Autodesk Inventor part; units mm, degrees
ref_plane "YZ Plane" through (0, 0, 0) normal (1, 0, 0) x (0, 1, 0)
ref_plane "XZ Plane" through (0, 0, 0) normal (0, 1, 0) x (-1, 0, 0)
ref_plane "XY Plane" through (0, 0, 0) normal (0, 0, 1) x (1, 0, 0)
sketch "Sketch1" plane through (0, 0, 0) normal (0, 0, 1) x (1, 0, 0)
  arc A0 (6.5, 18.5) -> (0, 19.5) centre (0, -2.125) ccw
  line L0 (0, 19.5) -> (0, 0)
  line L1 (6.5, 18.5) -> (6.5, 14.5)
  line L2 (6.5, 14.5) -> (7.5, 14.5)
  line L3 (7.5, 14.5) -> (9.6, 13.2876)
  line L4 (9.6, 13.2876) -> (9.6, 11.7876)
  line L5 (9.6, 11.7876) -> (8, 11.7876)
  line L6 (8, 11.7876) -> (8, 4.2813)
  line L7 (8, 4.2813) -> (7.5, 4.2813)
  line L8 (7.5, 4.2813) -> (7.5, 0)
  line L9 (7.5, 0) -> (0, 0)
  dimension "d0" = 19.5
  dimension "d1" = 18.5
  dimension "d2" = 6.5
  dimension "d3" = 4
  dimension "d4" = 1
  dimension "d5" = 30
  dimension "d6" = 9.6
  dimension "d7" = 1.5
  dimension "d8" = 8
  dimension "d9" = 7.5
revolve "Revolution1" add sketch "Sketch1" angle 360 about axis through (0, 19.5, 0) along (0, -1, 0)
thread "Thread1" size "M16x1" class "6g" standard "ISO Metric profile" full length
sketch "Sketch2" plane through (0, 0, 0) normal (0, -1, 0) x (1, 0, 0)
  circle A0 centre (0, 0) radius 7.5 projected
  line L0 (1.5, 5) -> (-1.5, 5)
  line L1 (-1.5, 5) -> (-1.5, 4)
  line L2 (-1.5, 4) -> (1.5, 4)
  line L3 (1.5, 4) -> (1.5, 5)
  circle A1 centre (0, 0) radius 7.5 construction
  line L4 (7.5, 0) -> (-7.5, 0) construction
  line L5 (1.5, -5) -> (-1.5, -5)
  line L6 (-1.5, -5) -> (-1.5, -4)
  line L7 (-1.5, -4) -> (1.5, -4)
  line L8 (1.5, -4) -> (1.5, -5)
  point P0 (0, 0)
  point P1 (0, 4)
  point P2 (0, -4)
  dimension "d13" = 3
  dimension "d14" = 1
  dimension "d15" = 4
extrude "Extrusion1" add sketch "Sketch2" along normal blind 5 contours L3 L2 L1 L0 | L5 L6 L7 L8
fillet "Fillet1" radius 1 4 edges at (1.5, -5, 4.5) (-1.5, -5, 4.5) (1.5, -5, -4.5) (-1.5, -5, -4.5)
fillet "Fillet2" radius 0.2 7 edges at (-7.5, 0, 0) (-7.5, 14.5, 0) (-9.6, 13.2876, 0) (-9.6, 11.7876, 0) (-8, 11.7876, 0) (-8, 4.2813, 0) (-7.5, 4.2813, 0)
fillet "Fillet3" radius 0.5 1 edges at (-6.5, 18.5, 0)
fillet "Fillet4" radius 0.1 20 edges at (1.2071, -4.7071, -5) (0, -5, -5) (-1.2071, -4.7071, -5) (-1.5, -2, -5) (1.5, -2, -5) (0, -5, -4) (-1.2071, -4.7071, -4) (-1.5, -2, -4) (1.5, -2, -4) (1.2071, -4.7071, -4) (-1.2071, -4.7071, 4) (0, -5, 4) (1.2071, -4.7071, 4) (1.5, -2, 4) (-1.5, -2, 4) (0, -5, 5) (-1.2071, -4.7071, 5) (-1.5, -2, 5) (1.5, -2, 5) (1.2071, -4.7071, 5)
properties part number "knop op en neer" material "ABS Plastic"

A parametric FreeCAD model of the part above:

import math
import FreeCAD as App
import Part
import Sketcher

V = App.Vector
Q = App.Units.Quantity


def edges_at(feature, points):
    """Names of the edges that pass closest to the given points."""
    edges = feature.Shape.Edges
    near = lambda p: min(range(len(edges)), key=lambda i: edges[i].distToShape(Part.Vertex(*p))[0])
    return sorted({f"Edge{near(p) + 1}" for p in points})

doc = App.newDocument("Part")
body = doc.addObject("PartDesign::Body", "Body")

# Sketch on XY plane
sketch1 = body.newObject("Sketcher::SketchObject", "Sketch")
sketch1.AttachmentSupport = (doc.getObject("XY_Plane"), [""])
sketch1.MapMode = "FlatFace"
sketch1.addGeometry([
    Part.LineSegment(V(6.5, 14.5, 0), V(6.5, 18.5, 0)),  # 0
    Part.ArcOfCircle(Part.Circle(V(0, -2.1, 0), V(0, 0, 1), 21.6), math.radians(72.51), math.radians(90)),  # 1
    Part.LineSegment(V(0, 19.5, 0), V(0, 0, 0)),  # 2
    Part.LineSegment(V(0, 0, 0), V(7.5, 0, 0)),  # 3
    Part.LineSegment(V(7.5, 0, 0), V(7.5, 4.3, 0)),  # 4
    Part.LineSegment(V(7.5, 4.3, 0), V(8, 4.3, 0)),  # 5
    Part.LineSegment(V(8, 4.3, 0), V(8, 11.8, 0)),  # 6
    Part.LineSegment(V(8, 11.8, 0), V(9.6, 11.8, 0)),  # 7
    Part.LineSegment(V(9.6, 11.8, 0), V(9.6, 13.3, 0)),  # 8
    Part.LineSegment(V(9.6, 13.3, 0), V(7.5, 14.5, 0)),  # 9
    Part.LineSegment(V(7.5, 14.5, 0), V(6.5, 14.5, 0)),  # 10
], False)
sketch1.addConstraint([
    Sketcher.Constraint("Coincident", 0, 2, 1, 1),
    Sketcher.Constraint("Coincident", 1, 2, 2, 1),
    Sketcher.Constraint("Coincident", 2, 2, 3, 1),
    Sketcher.Constraint("Coincident", 3, 2, 4, 1),
    Sketcher.Constraint("Coincident", 4, 2, 5, 1),
    Sketcher.Constraint("Coincident", 5, 2, 6, 1),
    Sketcher.Constraint("Coincident", 6, 2, 7, 1),
    Sketcher.Constraint("Coincident", 7, 2, 8, 1),
    Sketcher.Constraint("Coincident", 8, 2, 9, 1),
    Sketcher.Constraint("Coincident", 9, 2, 10, 1),
    Sketcher.Constraint("Coincident", 10, 2, 0, 1),
    Sketcher.Constraint("Vertical", 0),
    Sketcher.Constraint("Vertical", 2),
    Sketcher.Constraint("Horizontal", 3),
    Sketcher.Constraint("Vertical", 4),
    Sketcher.Constraint("Horizontal", 5),
    Sketcher.Constraint("Vertical", 6),
    Sketcher.Constraint("Horizontal", 7),
    Sketcher.Constraint("Vertical", 8),
    Sketcher.Constraint("Horizontal", 10),
    Sketcher.Constraint("Coincident", 2, 2, -1, 1),
    Sketcher.Constraint("PointOnObject", 1, 3, -2),
    Sketcher.Constraint("Vertical", 4, 2, 9, 2),
    Sketcher.Constraint("DistanceX", 10, 2, 10, 1, 1.0),
    Sketcher.Constraint("DistanceY", 0, 1, 0, 2, 4.0),
    Sketcher.Constraint("DistanceX", 3, 1, 3, 2, 7.5),
    Sketcher.Constraint("DistanceY", 2, 2, 2, 1, 19.5),
    Sketcher.Constraint("DistanceY", 8, 1, 8, 2, 1.5),
    Sketcher.Constraint("DistanceX", -1, 1, 5, 2, 8.0),
    Sketcher.Constraint("DistanceY", 0, 2, 1, 2, 1.0),
    Sketcher.Constraint("DistanceX", -1, 1, 7, 2, 9.6),
    Sketcher.Constraint("Angle", 9, Q("150.0007 deg")),
    Sketcher.Constraint("DistanceY", 4, 1, 4, 2, 4.2813),
])
revolution = body.newObject("PartDesign::Revolution", "Revolution")
revolution.Profile = sketch1
revolution.ReferenceAxis = (sketch1, ["V_Axis"])
revolution.Angle = 360

# Sketch on XZ plane
sketch2 = body.newObject("Sketcher::SketchObject", "Sketch001")
sketch2.AttachmentSupport = (doc.getObject("XZ_Plane"), [""])
sketch2.MapMode = "FlatFace"
sketch2.addGeometry([
    Part.LineSegment(V(1.5, 4, 0), V(1.5, 5, 0)),  # 0
    Part.LineSegment(V(1.5, 5, 0), V(-1.5, 5, 0)),  # 1
    Part.LineSegment(V(-1.5, 5, 0), V(-1.5, 4, 0)),  # 2
    Part.LineSegment(V(-1.5, 4, 0), V(1.5, 4, 0)),  # 3
    Part.LineSegment(V(-1.5, -5, 0), V(1.5, -5, 0)),  # 4
    Part.LineSegment(V(1.5, -5, 0), V(1.5, -4, 0)),  # 5
    Part.LineSegment(V(1.5, -4, 0), V(-1.5, -4, 0)),  # 6
    Part.LineSegment(V(-1.5, -4, 0), V(-1.5, -5, 0)),  # 7
], False)
sketch2.addConstraint([
    Sketcher.Constraint("Coincident", 0, 2, 1, 1),
    Sketcher.Constraint("Coincident", 1, 2, 2, 1),
    Sketcher.Constraint("Coincident", 2, 2, 3, 1),
    Sketcher.Constraint("Coincident", 3, 2, 0, 1),
    Sketcher.Constraint("Coincident", 4, 2, 5, 1),
    Sketcher.Constraint("Coincident", 5, 2, 6, 1),
    Sketcher.Constraint("Coincident", 6, 2, 7, 1),
    Sketcher.Constraint("Coincident", 7, 2, 4, 1),
    Sketcher.Constraint("Vertical", 0),
    Sketcher.Constraint("Horizontal", 1),
    Sketcher.Constraint("Vertical", 2),
    Sketcher.Constraint("Horizontal", 3),
    Sketcher.Constraint("Horizontal", 4),
    Sketcher.Constraint("Vertical", 5),
    Sketcher.Constraint("Horizontal", 6),
    Sketcher.Constraint("Vertical", 7),
    Sketcher.Constraint("Symmetric", 1, 2, 4, 2, -1, 1),
    Sketcher.Constraint("Symmetric", 3, 2, 6, 2, -1, 1),
    Sketcher.Constraint("Vertical", 3, 2, 4, 2),
    Sketcher.Constraint("DistanceX", 1, 2, 1, 1, 3.0),
    Sketcher.Constraint("DistanceY", 0, 1, 0, 2, 1.0),
    Sketcher.Constraint("DistanceY", -1, 1, 2, 2, 4.0),
])
pad1 = body.newObject("PartDesign::Pad", "Pad")
pad1.Profile = sketch2
pad1.Length = 5
doc.recompute()

fillet = body.newObject("PartDesign::Fillet", "Fillet")
fillet.Base = (pad1, edges_at(pad1, [
    (1.5, -5, 4.5),
    (-1.5, -5, 4.5),
    (1.5, -5, -4.5),
    (-1.5, -5, -4.5),
]))
fillet.Radius = 1
doc.recompute()

fillet2 = body.newObject("PartDesign::Fillet", "Fillet001")
fillet2.Base = (fillet, edges_at(fillet, [
    (-7.5, 0, 0),
    (-7.5, 14.5, 0),
    (-9.6, 13.288, 0),
    (-9.6, 11.788, 0),
    (-8, 11.788, 0),
    (-8, 4.281, 0),
    (-7.5, 4.281, 0),
]))
fillet2.Radius = 0.2
doc.recompute()

fillet3 = body.newObject("PartDesign::Fillet", "Fillet002")
fillet3.Base = (fillet2, edges_at(fillet2, [(-6.5, 18.5, 0)]))
fillet3.Radius = 0.5
doc.recompute()

fillet4 = body.newObject("PartDesign::Fillet", "Fillet003")
fillet4.Base = (fillet3, edges_at(fillet3, [
    (1.207, -4.707, -5),
    (0, -5, -5),
    (-1.207, -4.707, -5),
    (-1.5, -2, -5),
    (1.5, -2, -5),
    (0, -5, -4),
    (-1.207, -4.707, -4),
    (-1.5, -2, -4),
    (1.5, -2, -4),
    (1.207, -4.707, -4),
    (-1.207, -4.707, 4),
    (0, -5, 4),
    (1.207, -4.707, 4),
    (1.5, -2, 4),
    (-1.5, -2, 4),
    (0, -5, 5),
    (-1.207, -4.707, 5),
    (-1.5, -2, 5),
    (1.5, -2, 5),
    (1.207, -4.707, 5),
]))
fillet4.Radius = 0.1

doc.recompute()
